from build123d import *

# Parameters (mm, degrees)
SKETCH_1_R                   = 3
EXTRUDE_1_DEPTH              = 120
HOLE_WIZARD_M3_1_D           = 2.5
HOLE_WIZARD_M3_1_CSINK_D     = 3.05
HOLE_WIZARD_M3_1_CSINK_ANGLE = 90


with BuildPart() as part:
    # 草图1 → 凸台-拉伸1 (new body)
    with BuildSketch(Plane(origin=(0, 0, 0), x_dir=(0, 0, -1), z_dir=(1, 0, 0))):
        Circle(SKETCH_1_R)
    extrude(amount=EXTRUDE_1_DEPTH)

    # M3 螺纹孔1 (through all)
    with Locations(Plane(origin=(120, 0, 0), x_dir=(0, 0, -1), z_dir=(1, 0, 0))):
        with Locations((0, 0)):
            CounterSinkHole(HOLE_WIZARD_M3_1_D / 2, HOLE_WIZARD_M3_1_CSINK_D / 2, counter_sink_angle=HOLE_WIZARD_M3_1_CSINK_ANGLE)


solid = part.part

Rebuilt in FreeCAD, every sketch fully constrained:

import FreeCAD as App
import Part
import Sketcher

V = App.Vector

doc = App.newDocument("Part")
body = doc.addObject("PartDesign::Body", "Body")

# Sketch on YZ plane
sketch1 = doc.addObject("Sketcher::SketchObject", "Sketch")
body.addObject(sketch1)
sketch1.AttachmentSupport = (doc.YZ_Plane, [""])
sketch1.MapMode = "FlatFace"
sketch1.addGeometry(Part.Circle(V(0, 0, 0), V(0, 0, 1), 3), False)
sketch1.addConstraint([
    Sketcher.Constraint("Coincident", 0, 3, -1, 1),
    Sketcher.Constraint("Diameter", 0, 6.0),
])
pad1 = doc.addObject("PartDesign::Pad", "Pad")
body.addObject(pad1)
pad1.Profile = sketch1
pad1.Length = 120

# Sketch on YZ plane
sketch2 = doc.addObject("Sketcher::SketchObject", "Sketch001")
body.addObject(sketch2)
sketch2.AttachmentSupport = (doc.YZ_Plane, [""])
sketch2.MapMode = "FlatFace"
sketch2.AttachmentOffset = App.Placement(V(0, 0, 120), App.Rotation())
sketch2.addGeometry(Part.Circle(V(0, 0, 0), V(0, 0, 1), 1.2), False)
sketch2.addConstraint([
    Sketcher.Constraint("Coincident", 0, 3, -1, 1),
    Sketcher.Constraint("Diameter", 0, 2.5),
])
doc.recompute()
hole = doc.addObject("PartDesign::Hole", "Hole")
body.addObject(hole)
hole.Profile = sketch2
hole.ThreadType = "None"
hole.Diameter = 2.5
hole.DepthType = "ThroughAll"
hole.HoleCutType = "Countersink"
hole.HoleCutDiameter = 3.05
hole.HoleCutCountersinkAngle = 90

doc.recompute()
